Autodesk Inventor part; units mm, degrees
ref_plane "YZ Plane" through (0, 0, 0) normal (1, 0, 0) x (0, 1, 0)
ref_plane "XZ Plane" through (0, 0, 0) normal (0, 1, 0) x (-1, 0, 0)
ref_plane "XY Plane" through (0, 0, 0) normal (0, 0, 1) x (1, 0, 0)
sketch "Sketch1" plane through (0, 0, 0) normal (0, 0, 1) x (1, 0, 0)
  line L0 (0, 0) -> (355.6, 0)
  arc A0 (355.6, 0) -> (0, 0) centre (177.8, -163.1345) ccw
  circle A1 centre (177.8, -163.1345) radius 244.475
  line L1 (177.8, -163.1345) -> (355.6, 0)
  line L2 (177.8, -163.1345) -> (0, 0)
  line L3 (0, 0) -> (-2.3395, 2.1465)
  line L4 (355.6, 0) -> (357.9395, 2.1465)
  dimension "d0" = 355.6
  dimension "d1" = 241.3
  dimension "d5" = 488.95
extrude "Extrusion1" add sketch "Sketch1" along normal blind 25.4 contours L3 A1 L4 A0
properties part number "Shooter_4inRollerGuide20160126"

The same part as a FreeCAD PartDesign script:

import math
import FreeCAD as App
import Part
import Sketcher
from FreeCAD import Vector
Q = App.Units.Quantity

doc = App.newDocument("Part")
body = doc.addObject("PartDesign::Body", "Body")

sketch1 = body.newObject("Sketcher::SketchObject", "Sketch")
sketch1.AttachmentSupport = (doc.getObject("XY_Plane"), [""])
sketch1.MapMode = "FlatFace"
sketch1.addGeometry([
    Part.LineSegment(Vector(-2.3395, 2.1465, 0), Vector(0, 0, 0)),
    Part.ArcOfCircle(Part.Circle(Vector(177.8, -163.1345, 0), Vector(0, 0, 1), 241.300031), math.radians(42.536906), math.radians(137.463094)),
    Part.LineSegment(Vector(355.6, 0, 0), Vector(357.9395, 2.1465, 0)),
    Part.ArcOfCircle(Part.Circle(Vector(177.8, -163.1345, 0), Vector(0, 0, 1), 244.475), math.radians(42.536901), math.radians(137.463099)),
], False)
sketch1.addConstraint([
    Sketcher.Constraint("Coincident", 0, 2, 1, 2),
    Sketcher.Constraint("Coincident", 1, 1, 2, 1),
    Sketcher.Constraint("Coincident", 2, 2, 3, 1),
    Sketcher.Constraint("Coincident", 3, 2, 0, 1),
    Sketcher.Constraint("Coincident", 0, 2, -1, 1),
    Sketcher.Constraint("Coincident", 3, 3, 1, 3),
    Sketcher.Constraint("PointOnObject", 1, 1, -1),
    Sketcher.Constraint("Horizontal", 2, 2, 3, 2),
    Sketcher.Constraint("Radius", 1, Q("9.5 in")),
    Sketcher.Constraint("DistanceX", -1, 1, 1, 1, Q("14 in")),
    Sketcher.Constraint("Radius", 3, Q("9.625 in")),
    Sketcher.Constraint("DistanceX", -1, 1, 2, 2, Q("14.0921 in")),
])
pad1 = body.newObject("PartDesign::Pad", "Pad")
pad1.Profile = sketch1
pad1.Length = Q("1 in")

doc.recompute()
